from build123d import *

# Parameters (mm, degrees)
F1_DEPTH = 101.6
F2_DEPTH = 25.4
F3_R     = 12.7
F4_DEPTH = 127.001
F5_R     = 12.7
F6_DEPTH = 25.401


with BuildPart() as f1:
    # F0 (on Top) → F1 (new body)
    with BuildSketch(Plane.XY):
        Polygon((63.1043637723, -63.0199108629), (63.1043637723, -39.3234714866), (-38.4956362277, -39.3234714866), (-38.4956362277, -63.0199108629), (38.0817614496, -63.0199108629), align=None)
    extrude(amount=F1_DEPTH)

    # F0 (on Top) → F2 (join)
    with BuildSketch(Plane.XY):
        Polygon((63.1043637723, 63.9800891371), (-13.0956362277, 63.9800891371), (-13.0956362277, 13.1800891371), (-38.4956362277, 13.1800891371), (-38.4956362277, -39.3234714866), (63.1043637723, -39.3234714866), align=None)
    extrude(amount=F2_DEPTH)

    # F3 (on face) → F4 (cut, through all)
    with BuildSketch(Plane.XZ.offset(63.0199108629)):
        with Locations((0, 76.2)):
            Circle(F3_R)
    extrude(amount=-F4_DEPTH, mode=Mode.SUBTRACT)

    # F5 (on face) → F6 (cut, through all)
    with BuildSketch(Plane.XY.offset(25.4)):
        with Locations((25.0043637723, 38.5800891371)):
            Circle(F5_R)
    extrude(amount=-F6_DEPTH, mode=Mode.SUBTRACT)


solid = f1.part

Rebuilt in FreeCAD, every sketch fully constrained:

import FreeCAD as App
import Part
import Sketcher
Q = App.Units.Quantity


def add_polygon(sketch, points):
    """Adds a closed chain of lines whose ends are joined by coincident constraints."""
    first, n = sketch.GeometryCount, len(points)
    for a, b in zip(points, points[1:] + points[:1]):
        sketch.addGeometry(Part.LineSegment(App.Vector(*a, 0), App.Vector(*b, 0)), False)
    for i in range(n):
        sketch.addConstraint(Sketcher.Constraint("Coincident", first + i, 2, first + (i + 1) % n, 1))

doc = App.newDocument("Part")
body = doc.addObject("PartDesign::Body", "Body")

# Sketch on XY plane
sketch1 = doc.addObject("Sketcher::SketchObject", "Sketch")
body.addObject(sketch1)
sketch1.AttachmentSupport = (doc.XY_Plane, [""])
sketch1.MapMode = "FlatFace"
add_polygon(sketch1, [(63, -63), (63, -39), (-38, -39), (-38, -63)])  # lines 0-3
sketch1.addConstraint(Sketcher.Constraint("Vertical", 0))
sketch1.addConstraint(Sketcher.Constraint("Horizontal", 1))
sketch1.addConstraint(Sketcher.Constraint("Vertical", 2))
sketch1.addConstraint(Sketcher.Constraint("Horizontal", 3))
sketch1.addConstraint(Sketcher.Constraint("DistanceX", 1, 2, 1, 1, Q("4 in")))
sketch1.addConstraint(Sketcher.Constraint("DistanceY", 0, 1, 0, 2, 23.696439))
sketch1.addConstraint(Sketcher.Constraint("DistanceY", 0, 2, -1, 1, 39.323471))
sketch1.addConstraint(Sketcher.Constraint("DistanceX", -1, 1, 0, 2, 63.104364))
pad1 = doc.addObject("PartDesign::Pad", "Pad")
body.addObject(pad1)
pad1.Profile = sketch1
pad1.Length = Q("4 in")

# Sketch on XY plane
sketch2 = doc.addObject("Sketcher::SketchObject", "Sketch001")
body.addObject(sketch2)
sketch2.AttachmentSupport = (doc.XY_Plane, [""])
sketch2.MapMode = "FlatFace"
add_polygon(sketch2, [(63, 64), (-13, 64), (-13, 13), (-38, 13), (-38, -39), (63, -39)])  # lines 0-5
sketch2.addConstraint(Sketcher.Constraint("Horizontal", 0))
sketch2.addConstraint(Sketcher.Constraint("Vertical", 1))
sketch2.addConstraint(Sketcher.Constraint("Horizontal", 2))
sketch2.addConstraint(Sketcher.Constraint("Vertical", 3))
sketch2.addConstraint(Sketcher.Constraint("Horizontal", 4))
sketch2.addConstraint(Sketcher.Constraint("Vertical", 5))
sketch2.addConstraint(Sketcher.Constraint("DistanceX", 0, 2, 0, 1, Q("3 in")))
sketch2.addConstraint(Sketcher.Constraint("DistanceX", 2, 2, 2, 1, Q("1 in")))
sketch2.addConstraint(Sketcher.Constraint("DistanceY", 1, 2, 1, 1, Q("2 in")))
sketch2.addConstraint(Sketcher.Constraint("DistanceY", 3, 2, 3, 1, 52.503561))
sketch2.addConstraint(Sketcher.Constraint("DistanceY", -1, 1, 0, 2, 63.980089))
sketch2.addConstraint(Sketcher.Constraint("DistanceX", 0, 2, -1, 1, 13.095636))
pad2 = doc.addObject("PartDesign::Pad", "Pad001")
body.addObject(pad2)
pad2.Profile = sketch2
pad2.Length = Q("1 in")

# Sketch on XZ plane
sketch3 = doc.addObject("Sketcher::SketchObject", "Sketch002")
body.addObject(sketch3)
sketch3.AttachmentSupport = (doc.XZ_Plane, [""])
sketch3.MapMode = "FlatFace"
sketch3.AttachmentOffset = App.Placement(App.Vector(0, 0, 63.019911), App.Rotation())
sketch3.addGeometry(Part.Circle(App.Vector(0, 76, 0), App.Vector(0, 0, 1), 13), False)
sketch3.addConstraint(Sketcher.Constraint("PointOnObject", 0, 3, -2))
sketch3.addConstraint(Sketcher.Constraint("Diameter", 0, Q("1 in")))
sketch3.addConstraint(Sketcher.Constraint("DistanceY", -1, 1, 0, 3, Q("3 in")))
pocket1 = doc.addObject("PartDesign::Pocket", "Pocket")
body.addObject(pocket1)
pocket1.Profile = sketch3
pocket1.Type = "ThroughAll"

# Sketch on XY plane
sketch4 = doc.addObject("Sketcher::SketchObject", "Sketch003")
body.addObject(sketch4)
sketch4.AttachmentSupport = (doc.XY_Plane, [""])
sketch4.MapMode = "FlatFace"
sketch4.AttachmentOffset = App.Placement(App.Vector(0, 0, 1 * 25.4), App.Rotation())
sketch4.addGeometry(Part.Circle(App.Vector(25, 39, 0), App.Vector(0, 0, 1), 13), False)
sketch4.addConstraint(Sketcher.Constraint("Diameter", 0, Q("1 in")))
sketch4.addConstraint(Sketcher.Constraint("DistanceY", -1, 1, 0, 3, 38.580089))
sketch4.addConstraint(Sketcher.Constraint("DistanceX", -1, 1, 0, 3, 25.004364))
pocket2 = doc.addObject("PartDesign::Pocket", "Pocket001")
body.addObject(pocket2)
pocket2.Profile = sketch4
pocket2.Type = "ThroughAll"

doc.recompute()
